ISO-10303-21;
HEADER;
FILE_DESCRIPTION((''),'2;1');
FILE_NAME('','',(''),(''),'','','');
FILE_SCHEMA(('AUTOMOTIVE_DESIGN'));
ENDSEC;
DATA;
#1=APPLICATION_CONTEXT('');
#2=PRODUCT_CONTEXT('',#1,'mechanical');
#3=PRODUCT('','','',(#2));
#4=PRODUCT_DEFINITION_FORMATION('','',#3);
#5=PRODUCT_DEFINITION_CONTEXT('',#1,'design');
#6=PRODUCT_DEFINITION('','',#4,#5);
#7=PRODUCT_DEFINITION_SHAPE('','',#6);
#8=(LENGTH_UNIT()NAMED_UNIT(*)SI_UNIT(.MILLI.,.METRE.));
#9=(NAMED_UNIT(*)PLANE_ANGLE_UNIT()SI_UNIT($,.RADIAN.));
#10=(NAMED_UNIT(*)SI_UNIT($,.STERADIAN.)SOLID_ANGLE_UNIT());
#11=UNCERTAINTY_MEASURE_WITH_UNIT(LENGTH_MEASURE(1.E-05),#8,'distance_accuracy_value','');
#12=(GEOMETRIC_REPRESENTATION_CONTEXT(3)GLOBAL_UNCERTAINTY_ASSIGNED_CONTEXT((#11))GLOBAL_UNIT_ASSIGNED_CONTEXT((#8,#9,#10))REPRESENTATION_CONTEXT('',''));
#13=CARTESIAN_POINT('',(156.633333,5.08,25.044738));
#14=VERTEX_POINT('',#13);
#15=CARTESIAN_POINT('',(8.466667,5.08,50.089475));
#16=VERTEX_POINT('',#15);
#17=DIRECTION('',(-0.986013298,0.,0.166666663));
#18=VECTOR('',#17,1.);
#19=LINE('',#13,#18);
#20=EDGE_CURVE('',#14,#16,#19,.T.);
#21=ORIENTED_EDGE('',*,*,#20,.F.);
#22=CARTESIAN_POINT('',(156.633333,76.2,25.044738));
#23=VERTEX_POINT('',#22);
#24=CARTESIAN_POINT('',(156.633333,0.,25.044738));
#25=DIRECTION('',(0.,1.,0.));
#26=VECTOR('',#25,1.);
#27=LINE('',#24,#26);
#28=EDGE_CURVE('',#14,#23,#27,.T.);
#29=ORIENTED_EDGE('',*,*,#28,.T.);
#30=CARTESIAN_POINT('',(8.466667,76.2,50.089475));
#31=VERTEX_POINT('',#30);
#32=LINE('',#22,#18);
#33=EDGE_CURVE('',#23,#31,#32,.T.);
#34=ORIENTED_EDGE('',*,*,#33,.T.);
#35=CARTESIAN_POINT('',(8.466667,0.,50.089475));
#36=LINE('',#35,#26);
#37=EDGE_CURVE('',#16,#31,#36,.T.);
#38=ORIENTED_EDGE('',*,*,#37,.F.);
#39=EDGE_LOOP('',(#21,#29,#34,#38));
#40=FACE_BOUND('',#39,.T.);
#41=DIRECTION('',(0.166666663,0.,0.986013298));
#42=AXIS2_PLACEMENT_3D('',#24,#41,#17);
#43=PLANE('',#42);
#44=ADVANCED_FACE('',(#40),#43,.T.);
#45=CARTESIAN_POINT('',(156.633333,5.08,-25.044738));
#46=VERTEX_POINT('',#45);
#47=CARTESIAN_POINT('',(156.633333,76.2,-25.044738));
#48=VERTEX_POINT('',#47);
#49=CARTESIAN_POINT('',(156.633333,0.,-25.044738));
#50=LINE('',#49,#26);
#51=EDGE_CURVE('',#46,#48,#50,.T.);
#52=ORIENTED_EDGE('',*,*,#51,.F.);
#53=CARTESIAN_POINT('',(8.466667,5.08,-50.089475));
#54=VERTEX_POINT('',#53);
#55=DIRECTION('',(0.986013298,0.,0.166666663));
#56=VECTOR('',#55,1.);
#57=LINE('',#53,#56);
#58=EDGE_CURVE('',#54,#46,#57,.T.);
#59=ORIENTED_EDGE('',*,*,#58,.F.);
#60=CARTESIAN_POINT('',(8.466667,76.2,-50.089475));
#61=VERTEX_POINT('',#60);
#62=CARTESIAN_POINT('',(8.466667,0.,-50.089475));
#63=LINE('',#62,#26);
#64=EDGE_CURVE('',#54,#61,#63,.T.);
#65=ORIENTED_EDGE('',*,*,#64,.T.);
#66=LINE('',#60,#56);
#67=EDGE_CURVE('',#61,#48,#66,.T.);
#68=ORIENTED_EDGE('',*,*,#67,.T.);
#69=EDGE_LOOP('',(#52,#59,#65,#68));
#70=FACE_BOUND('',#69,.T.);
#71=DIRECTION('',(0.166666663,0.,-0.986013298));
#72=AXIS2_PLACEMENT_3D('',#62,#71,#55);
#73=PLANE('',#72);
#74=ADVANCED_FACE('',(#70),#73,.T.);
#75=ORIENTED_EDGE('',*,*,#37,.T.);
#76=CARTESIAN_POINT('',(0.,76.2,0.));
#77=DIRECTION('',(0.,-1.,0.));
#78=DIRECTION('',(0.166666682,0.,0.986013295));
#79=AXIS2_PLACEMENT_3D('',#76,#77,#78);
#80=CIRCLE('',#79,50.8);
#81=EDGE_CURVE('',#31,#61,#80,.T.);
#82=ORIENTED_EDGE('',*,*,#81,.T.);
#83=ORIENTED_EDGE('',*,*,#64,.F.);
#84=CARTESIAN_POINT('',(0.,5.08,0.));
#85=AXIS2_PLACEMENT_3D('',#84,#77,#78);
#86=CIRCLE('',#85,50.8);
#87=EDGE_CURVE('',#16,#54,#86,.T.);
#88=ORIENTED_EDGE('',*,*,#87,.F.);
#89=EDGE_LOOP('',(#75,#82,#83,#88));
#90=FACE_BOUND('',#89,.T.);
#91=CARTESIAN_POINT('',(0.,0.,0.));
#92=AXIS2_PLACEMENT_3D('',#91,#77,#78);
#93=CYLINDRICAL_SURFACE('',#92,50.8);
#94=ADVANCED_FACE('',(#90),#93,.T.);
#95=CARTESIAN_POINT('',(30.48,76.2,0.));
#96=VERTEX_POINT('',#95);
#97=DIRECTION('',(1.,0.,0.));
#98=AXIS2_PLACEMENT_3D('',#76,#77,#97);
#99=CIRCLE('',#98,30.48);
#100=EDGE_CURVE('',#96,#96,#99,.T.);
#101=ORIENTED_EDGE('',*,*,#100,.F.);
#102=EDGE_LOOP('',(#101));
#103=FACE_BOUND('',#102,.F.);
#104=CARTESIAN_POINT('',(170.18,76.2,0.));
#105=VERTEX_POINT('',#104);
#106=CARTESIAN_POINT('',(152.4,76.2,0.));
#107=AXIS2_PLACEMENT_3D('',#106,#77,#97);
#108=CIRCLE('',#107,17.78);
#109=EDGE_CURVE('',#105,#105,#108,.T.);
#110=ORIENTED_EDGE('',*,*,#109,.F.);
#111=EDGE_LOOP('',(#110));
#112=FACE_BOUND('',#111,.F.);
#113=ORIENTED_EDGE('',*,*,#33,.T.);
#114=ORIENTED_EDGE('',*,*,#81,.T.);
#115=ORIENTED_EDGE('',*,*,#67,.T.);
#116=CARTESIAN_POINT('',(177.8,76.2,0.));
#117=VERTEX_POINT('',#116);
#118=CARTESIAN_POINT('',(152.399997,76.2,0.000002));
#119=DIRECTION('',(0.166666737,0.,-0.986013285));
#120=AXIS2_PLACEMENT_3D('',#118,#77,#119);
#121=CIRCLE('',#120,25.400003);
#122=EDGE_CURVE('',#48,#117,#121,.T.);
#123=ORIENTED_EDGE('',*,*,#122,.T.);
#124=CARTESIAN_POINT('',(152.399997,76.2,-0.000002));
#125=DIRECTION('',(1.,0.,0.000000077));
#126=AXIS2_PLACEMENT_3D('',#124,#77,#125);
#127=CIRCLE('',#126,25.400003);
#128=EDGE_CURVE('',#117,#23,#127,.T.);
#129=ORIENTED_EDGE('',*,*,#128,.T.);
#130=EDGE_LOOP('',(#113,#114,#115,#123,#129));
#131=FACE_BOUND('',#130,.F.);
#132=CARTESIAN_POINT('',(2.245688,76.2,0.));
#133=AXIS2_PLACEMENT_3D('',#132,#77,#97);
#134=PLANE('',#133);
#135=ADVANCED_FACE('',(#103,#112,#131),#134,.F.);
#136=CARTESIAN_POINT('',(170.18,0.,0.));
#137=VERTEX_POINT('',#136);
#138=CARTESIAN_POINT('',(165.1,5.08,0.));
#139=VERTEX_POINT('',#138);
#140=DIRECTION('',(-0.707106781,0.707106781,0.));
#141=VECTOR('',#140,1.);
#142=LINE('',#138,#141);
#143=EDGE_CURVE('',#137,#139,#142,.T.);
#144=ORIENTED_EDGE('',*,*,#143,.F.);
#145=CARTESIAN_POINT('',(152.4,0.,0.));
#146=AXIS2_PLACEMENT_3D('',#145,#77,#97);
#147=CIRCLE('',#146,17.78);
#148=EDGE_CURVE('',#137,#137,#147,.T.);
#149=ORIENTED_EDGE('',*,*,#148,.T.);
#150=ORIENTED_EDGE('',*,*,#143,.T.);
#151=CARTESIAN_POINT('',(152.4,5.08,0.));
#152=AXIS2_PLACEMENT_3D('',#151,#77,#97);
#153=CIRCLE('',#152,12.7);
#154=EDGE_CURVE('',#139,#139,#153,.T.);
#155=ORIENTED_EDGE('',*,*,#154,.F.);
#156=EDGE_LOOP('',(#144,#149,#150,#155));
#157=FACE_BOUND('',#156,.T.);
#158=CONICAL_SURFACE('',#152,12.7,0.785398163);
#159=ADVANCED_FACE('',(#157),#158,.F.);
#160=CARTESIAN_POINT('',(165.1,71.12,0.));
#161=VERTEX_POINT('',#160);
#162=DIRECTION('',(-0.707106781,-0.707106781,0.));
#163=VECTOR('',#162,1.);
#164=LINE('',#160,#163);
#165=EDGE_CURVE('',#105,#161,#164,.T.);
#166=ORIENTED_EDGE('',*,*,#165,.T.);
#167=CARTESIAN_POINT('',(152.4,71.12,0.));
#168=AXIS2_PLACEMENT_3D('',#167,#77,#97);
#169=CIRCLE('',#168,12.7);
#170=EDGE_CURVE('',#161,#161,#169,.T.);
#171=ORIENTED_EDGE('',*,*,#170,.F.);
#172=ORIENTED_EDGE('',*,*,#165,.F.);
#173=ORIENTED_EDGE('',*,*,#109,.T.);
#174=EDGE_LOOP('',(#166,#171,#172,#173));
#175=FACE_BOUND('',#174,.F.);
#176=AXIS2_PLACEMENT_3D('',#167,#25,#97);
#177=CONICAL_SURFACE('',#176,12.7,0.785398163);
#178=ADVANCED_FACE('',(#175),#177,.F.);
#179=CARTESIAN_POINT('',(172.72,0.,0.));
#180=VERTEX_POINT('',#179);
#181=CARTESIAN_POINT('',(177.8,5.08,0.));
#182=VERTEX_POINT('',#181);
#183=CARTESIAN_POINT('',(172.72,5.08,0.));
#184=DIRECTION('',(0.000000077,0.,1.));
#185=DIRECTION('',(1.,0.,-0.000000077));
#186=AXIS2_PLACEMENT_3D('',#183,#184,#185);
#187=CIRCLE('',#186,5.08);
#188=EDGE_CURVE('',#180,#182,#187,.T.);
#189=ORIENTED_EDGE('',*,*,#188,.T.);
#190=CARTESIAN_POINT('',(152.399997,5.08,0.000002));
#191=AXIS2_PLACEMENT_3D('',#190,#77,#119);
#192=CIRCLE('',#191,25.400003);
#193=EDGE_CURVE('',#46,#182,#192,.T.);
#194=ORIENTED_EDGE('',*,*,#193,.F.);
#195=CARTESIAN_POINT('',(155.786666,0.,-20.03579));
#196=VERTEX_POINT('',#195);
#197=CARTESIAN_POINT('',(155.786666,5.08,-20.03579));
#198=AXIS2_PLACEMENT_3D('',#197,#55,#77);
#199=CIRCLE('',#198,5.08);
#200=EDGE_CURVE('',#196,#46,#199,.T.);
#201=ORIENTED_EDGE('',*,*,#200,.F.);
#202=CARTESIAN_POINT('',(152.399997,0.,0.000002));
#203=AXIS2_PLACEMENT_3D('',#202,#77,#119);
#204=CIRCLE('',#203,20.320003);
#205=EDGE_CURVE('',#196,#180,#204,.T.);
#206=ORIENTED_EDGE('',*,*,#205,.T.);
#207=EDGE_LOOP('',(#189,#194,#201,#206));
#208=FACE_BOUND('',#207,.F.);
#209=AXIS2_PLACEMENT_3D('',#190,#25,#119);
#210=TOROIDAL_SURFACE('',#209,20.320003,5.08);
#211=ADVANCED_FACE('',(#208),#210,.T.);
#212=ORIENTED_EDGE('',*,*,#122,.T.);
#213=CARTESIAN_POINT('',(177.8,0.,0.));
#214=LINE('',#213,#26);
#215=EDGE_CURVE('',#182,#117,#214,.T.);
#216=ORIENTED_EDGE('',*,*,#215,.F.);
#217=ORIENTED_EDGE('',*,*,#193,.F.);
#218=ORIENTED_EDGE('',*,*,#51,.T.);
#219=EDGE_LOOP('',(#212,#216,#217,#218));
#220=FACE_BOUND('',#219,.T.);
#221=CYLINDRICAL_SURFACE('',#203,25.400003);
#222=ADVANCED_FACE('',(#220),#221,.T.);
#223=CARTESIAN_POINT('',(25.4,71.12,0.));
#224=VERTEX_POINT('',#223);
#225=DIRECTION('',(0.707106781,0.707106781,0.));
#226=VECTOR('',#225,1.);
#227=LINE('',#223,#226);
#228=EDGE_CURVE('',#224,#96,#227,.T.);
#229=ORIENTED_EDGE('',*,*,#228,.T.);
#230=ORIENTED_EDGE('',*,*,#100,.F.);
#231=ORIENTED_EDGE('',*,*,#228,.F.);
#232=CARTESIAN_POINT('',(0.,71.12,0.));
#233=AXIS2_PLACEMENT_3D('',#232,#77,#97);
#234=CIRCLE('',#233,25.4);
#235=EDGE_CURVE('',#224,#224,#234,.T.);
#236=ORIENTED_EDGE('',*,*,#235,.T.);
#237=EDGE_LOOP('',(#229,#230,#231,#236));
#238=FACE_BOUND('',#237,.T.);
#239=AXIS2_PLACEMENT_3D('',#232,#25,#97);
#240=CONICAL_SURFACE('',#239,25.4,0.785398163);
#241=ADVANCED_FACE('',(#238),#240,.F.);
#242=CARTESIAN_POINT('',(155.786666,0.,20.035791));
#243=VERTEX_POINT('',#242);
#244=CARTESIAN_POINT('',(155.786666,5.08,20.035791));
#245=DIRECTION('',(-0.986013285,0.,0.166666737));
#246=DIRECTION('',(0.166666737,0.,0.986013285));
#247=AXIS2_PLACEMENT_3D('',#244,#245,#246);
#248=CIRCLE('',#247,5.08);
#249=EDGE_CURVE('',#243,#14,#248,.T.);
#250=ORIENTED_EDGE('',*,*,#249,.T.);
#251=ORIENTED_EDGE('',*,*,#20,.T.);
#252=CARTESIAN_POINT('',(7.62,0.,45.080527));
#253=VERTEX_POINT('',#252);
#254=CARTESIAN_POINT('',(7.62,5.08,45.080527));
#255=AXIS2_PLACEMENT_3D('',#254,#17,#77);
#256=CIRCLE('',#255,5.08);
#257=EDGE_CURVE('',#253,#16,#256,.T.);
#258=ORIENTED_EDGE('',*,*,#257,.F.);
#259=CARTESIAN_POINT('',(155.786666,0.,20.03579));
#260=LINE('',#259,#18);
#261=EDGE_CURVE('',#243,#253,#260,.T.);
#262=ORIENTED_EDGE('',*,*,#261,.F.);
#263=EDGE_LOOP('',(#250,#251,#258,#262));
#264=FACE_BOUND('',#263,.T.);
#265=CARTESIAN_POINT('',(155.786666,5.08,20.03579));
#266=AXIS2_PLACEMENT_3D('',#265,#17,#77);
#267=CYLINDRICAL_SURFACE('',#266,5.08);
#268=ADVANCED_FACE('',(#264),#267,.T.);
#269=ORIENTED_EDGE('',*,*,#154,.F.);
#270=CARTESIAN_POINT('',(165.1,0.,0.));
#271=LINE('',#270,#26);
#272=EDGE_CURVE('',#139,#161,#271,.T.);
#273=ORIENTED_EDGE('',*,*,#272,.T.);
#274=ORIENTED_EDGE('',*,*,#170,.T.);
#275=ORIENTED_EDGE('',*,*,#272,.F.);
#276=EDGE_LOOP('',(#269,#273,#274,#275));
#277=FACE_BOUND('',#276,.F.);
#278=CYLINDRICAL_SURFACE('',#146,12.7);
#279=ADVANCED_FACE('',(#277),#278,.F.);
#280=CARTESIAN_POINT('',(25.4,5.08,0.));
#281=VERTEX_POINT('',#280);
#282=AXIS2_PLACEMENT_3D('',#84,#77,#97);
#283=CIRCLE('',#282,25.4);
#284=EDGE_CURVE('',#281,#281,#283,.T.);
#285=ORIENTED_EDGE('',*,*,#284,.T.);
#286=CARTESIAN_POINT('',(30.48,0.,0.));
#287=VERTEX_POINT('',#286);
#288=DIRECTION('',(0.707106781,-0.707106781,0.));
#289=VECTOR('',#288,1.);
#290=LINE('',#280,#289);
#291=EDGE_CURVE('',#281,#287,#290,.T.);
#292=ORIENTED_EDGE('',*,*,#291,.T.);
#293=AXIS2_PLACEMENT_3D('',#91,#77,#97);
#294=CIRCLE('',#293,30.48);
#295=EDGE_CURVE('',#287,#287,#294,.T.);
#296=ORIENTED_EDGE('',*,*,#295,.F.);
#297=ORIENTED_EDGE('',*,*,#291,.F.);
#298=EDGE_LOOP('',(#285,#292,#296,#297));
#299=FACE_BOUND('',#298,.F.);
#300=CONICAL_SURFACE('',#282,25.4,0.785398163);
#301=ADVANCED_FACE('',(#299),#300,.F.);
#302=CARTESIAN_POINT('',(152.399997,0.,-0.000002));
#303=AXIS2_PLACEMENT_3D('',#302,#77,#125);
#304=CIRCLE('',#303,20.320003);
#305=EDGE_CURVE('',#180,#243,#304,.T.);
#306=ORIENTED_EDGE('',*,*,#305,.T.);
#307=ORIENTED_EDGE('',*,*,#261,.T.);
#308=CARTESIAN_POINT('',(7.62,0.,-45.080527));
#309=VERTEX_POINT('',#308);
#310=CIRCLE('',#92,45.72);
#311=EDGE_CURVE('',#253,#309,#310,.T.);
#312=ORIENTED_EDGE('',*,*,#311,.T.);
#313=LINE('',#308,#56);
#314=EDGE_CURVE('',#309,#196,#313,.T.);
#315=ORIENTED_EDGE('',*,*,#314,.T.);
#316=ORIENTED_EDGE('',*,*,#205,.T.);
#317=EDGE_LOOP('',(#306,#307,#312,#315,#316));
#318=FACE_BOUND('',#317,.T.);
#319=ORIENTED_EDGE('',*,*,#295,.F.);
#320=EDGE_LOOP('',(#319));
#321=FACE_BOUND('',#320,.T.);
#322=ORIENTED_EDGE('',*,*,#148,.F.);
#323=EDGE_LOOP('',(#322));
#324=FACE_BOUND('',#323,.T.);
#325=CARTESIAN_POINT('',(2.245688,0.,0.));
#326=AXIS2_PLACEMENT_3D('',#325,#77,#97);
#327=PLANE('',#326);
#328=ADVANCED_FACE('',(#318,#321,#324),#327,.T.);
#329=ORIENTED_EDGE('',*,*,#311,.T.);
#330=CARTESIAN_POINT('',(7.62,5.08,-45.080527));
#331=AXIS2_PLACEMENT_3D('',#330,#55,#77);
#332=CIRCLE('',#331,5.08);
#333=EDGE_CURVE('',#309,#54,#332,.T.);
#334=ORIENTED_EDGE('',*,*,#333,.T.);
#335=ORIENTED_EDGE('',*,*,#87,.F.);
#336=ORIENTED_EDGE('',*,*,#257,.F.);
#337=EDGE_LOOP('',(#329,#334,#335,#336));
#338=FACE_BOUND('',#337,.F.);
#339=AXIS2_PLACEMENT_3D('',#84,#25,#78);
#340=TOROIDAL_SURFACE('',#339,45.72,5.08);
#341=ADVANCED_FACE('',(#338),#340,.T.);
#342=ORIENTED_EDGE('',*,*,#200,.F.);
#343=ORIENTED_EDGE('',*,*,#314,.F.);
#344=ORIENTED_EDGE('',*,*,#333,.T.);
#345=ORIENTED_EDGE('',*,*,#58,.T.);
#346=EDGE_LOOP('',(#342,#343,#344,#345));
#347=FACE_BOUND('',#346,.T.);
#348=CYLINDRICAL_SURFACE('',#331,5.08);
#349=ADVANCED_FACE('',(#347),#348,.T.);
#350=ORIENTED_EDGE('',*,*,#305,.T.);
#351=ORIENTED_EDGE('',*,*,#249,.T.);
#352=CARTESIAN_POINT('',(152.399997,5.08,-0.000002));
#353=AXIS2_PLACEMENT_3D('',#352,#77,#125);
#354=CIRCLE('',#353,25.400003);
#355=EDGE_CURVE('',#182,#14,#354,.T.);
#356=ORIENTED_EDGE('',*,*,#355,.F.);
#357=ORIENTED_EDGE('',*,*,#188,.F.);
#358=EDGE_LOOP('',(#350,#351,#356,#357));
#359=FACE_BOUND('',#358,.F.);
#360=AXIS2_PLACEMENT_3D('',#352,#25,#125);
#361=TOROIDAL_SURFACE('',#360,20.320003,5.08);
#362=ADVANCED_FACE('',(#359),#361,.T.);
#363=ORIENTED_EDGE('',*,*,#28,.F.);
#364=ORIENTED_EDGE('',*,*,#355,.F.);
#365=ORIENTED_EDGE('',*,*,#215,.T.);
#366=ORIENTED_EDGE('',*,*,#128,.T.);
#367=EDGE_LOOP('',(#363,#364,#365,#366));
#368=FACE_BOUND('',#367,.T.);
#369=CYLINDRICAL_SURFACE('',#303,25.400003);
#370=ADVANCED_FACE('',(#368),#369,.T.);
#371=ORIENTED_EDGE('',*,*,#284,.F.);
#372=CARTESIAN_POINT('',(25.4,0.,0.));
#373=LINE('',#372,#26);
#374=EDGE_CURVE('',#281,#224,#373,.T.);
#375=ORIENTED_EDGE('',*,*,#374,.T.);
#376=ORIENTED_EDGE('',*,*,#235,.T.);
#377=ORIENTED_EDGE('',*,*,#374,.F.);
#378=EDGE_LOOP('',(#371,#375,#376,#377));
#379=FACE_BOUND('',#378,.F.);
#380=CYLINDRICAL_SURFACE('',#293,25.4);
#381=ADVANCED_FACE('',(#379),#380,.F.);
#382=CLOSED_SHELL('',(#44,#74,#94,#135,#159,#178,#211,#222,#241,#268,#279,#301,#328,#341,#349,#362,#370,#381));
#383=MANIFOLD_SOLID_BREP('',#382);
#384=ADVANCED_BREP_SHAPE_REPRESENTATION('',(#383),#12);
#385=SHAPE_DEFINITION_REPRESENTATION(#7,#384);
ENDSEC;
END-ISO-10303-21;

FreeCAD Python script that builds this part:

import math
import FreeCAD as App
import Part
import Sketcher
from FreeCAD import Vector
Q = App.Units.Quantity


def edges_at(feature, points):
    """Names of the edges that pass closest to the given points."""
    edges = feature.Shape.Edges
    near = lambda p: min(range(len(edges)), key=lambda i: edges[i].distToShape(Part.Vertex(*p))[0])
    return sorted({f"Edge{near(p) + 1}" for p in points})

doc = App.newDocument("Part")
body = doc.addObject("PartDesign::Body", "Body")

# Sketch on XZ plane
sketch1 = doc.addObject("Sketcher::SketchObject", "Sketch")
body.addObject(sketch1)
sketch1.AttachmentSupport = (doc.XZ_Plane, [""])
sketch1.MapMode = "FlatFace"
sketch1.addGeometry([
    Part.ArcOfCircle(Part.Circle(Vector(0, 0, 0), Vector(0, 0, 1), 51), math.radians(80), math.radians(280)),  # 0
    Part.LineSegment(Vector(8, -50, 0), Vector(157, -25, 0)),  # 1
    Part.ArcOfCircle(Part.Circle(Vector(152, 0, 0), Vector(0, 0, 1), 25), math.radians(-80), math.radians(0)),  # 2
    Part.ArcOfCircle(Part.Circle(Vector(152, 0, 0), Vector(0, 0, 1), 25), math.radians(0), math.radians(80)),  # 3
    Part.LineSegment(Vector(157, 25, 0), Vector(8, 50, 0)),  # 4
    Part.Circle(Vector(0, 0, 0), Vector(0, 0, 1), 25),  # 5
    Part.Circle(Vector(152, 0, 0), Vector(0, 0, 1), 13),  # 6
], False)
sketch1.addConstraint([
    Sketcher.Constraint("Tangent", 0, 2, 1, 1),
    Sketcher.Constraint("Tangent", 1, 2, 2, 1),
    Sketcher.Constraint("Tangent", 2, 2, 3, 1),
    Sketcher.Constraint("Tangent", 3, 2, 4, 1),
    Sketcher.Constraint("Tangent", 4, 2, 0, 1),
    Sketcher.Constraint("Coincident", 0, 3, -1, 1),
    Sketcher.Constraint("Coincident", 5, 3, -1, 1),
    Sketcher.Constraint("Coincident", 6, 3, 2, 3),
    Sketcher.Constraint("Equal", 2, 3),
    Sketcher.Constraint("PointOnObject", 2, 3, -1),
    Sketcher.Constraint("PointOnObject", 2, 2, -1),
    Sketcher.Constraint("Diameter", 5, Q("2 in")),
    Sketcher.Constraint("Diameter", 6, Q("1 in")),
    Sketcher.Constraint("Radius", 0, Q("2 in")),
    Sketcher.Constraint("Radius", 2, Q("1.0000001 in")),
    Sketcher.Constraint("DistanceX", -1, 1, 2, 3, Q("5.9999999 in")),
])
pad1 = doc.addObject("PartDesign::Pad", "Pad")
body.addObject(pad1)
pad1.Profile = sketch1
pad1.Length = Q("3 in")
pad1.Reversed = True
doc.recompute()

chamfer = doc.addObject("PartDesign::Chamfer", "Chamfer")
body.addObject(chamfer)
chamfer.Base = (pad1, edges_at(pad1, [(-25.4, 0, 0), (-25.4, 76.2, 0)]))
chamfer.Size = Q("0.2 in")
doc.recompute()

chamfer2 = doc.addObject("PartDesign::Chamfer", "Chamfer001")
body.addObject(chamfer2)
chamfer2.Base = (chamfer, edges_at(chamfer, [(139.7, 76.2, 0), (139.7, 0, 0)]))
chamfer2.Size = Q("0.2 in")
doc.recompute()

fillet = doc.addObject("PartDesign::Fillet", "Fillet")
body.addObject(fillet)
fillet.Base = (chamfer2, edges_at(chamfer2, [(82.55, 0, -37.567)]))
fillet.Radius = Q("0.2 in")

doc.recompute()
